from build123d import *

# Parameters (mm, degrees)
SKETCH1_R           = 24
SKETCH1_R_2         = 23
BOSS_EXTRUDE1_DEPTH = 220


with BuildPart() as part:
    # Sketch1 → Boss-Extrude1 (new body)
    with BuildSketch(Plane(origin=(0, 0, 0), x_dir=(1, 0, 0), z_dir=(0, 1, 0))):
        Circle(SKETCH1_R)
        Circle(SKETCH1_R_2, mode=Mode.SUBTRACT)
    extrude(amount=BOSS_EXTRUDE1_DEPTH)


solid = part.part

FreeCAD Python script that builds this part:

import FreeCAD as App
import Part
import Sketcher
Q = App.Units.Quantity

doc = App.newDocument("Part")
params = doc.addObject("Spreadsheet::Sheet", "Params")
for row, (alias, value) in enumerate([
    ("sketch1_diameter", "48 mm"),
    ("sketch1_diameter2", "46 mm"),
    ("pad1_length", "220 mm"),
], start=1):
    params.set(f"A{row}", alias)
    params.set(f"B{row}", "=" + value)
    params.setAlias(f"B{row}", alias)

body = doc.addObject("PartDesign::Body", "Body")

# Sketch on XZ plane
sketch1 = doc.addObject("Sketcher::SketchObject", "Sketch")
body.addObject(sketch1)
sketch1.AttachmentSupport = (doc.XZ_Plane, [""])
sketch1.MapMode = "FlatFace"
sketch1.addGeometry([
    Part.Circle(App.Vector(0, 0, 0), App.Vector(0, 0, 1), 24),
    Part.Circle(App.Vector(0, 0, 0), App.Vector(0, 0, 1), 23),
], False)
sketch1.addConstraint([
    Sketcher.Constraint("Coincident", 0, 3, -1, 1),
    Sketcher.Constraint("Coincident", 1, 3, -1, 1),
    Sketcher.Constraint("Diameter", 0, Q("48 mm")),
    Sketcher.Constraint("Diameter", 1, Q("46 mm")),
])
sketch1.setExpression("Constraints[2]", "Params.sketch1_diameter")
sketch1.setExpression("Constraints[3]", "Params.sketch1_diameter2")
pad1 = doc.addObject("PartDesign::Pad", "Pad")
body.addObject(pad1)
pad1.Profile = sketch1
pad1.setExpression("Length", "Params.pad1_length")
pad1.Reversed = True

doc.recompute()
